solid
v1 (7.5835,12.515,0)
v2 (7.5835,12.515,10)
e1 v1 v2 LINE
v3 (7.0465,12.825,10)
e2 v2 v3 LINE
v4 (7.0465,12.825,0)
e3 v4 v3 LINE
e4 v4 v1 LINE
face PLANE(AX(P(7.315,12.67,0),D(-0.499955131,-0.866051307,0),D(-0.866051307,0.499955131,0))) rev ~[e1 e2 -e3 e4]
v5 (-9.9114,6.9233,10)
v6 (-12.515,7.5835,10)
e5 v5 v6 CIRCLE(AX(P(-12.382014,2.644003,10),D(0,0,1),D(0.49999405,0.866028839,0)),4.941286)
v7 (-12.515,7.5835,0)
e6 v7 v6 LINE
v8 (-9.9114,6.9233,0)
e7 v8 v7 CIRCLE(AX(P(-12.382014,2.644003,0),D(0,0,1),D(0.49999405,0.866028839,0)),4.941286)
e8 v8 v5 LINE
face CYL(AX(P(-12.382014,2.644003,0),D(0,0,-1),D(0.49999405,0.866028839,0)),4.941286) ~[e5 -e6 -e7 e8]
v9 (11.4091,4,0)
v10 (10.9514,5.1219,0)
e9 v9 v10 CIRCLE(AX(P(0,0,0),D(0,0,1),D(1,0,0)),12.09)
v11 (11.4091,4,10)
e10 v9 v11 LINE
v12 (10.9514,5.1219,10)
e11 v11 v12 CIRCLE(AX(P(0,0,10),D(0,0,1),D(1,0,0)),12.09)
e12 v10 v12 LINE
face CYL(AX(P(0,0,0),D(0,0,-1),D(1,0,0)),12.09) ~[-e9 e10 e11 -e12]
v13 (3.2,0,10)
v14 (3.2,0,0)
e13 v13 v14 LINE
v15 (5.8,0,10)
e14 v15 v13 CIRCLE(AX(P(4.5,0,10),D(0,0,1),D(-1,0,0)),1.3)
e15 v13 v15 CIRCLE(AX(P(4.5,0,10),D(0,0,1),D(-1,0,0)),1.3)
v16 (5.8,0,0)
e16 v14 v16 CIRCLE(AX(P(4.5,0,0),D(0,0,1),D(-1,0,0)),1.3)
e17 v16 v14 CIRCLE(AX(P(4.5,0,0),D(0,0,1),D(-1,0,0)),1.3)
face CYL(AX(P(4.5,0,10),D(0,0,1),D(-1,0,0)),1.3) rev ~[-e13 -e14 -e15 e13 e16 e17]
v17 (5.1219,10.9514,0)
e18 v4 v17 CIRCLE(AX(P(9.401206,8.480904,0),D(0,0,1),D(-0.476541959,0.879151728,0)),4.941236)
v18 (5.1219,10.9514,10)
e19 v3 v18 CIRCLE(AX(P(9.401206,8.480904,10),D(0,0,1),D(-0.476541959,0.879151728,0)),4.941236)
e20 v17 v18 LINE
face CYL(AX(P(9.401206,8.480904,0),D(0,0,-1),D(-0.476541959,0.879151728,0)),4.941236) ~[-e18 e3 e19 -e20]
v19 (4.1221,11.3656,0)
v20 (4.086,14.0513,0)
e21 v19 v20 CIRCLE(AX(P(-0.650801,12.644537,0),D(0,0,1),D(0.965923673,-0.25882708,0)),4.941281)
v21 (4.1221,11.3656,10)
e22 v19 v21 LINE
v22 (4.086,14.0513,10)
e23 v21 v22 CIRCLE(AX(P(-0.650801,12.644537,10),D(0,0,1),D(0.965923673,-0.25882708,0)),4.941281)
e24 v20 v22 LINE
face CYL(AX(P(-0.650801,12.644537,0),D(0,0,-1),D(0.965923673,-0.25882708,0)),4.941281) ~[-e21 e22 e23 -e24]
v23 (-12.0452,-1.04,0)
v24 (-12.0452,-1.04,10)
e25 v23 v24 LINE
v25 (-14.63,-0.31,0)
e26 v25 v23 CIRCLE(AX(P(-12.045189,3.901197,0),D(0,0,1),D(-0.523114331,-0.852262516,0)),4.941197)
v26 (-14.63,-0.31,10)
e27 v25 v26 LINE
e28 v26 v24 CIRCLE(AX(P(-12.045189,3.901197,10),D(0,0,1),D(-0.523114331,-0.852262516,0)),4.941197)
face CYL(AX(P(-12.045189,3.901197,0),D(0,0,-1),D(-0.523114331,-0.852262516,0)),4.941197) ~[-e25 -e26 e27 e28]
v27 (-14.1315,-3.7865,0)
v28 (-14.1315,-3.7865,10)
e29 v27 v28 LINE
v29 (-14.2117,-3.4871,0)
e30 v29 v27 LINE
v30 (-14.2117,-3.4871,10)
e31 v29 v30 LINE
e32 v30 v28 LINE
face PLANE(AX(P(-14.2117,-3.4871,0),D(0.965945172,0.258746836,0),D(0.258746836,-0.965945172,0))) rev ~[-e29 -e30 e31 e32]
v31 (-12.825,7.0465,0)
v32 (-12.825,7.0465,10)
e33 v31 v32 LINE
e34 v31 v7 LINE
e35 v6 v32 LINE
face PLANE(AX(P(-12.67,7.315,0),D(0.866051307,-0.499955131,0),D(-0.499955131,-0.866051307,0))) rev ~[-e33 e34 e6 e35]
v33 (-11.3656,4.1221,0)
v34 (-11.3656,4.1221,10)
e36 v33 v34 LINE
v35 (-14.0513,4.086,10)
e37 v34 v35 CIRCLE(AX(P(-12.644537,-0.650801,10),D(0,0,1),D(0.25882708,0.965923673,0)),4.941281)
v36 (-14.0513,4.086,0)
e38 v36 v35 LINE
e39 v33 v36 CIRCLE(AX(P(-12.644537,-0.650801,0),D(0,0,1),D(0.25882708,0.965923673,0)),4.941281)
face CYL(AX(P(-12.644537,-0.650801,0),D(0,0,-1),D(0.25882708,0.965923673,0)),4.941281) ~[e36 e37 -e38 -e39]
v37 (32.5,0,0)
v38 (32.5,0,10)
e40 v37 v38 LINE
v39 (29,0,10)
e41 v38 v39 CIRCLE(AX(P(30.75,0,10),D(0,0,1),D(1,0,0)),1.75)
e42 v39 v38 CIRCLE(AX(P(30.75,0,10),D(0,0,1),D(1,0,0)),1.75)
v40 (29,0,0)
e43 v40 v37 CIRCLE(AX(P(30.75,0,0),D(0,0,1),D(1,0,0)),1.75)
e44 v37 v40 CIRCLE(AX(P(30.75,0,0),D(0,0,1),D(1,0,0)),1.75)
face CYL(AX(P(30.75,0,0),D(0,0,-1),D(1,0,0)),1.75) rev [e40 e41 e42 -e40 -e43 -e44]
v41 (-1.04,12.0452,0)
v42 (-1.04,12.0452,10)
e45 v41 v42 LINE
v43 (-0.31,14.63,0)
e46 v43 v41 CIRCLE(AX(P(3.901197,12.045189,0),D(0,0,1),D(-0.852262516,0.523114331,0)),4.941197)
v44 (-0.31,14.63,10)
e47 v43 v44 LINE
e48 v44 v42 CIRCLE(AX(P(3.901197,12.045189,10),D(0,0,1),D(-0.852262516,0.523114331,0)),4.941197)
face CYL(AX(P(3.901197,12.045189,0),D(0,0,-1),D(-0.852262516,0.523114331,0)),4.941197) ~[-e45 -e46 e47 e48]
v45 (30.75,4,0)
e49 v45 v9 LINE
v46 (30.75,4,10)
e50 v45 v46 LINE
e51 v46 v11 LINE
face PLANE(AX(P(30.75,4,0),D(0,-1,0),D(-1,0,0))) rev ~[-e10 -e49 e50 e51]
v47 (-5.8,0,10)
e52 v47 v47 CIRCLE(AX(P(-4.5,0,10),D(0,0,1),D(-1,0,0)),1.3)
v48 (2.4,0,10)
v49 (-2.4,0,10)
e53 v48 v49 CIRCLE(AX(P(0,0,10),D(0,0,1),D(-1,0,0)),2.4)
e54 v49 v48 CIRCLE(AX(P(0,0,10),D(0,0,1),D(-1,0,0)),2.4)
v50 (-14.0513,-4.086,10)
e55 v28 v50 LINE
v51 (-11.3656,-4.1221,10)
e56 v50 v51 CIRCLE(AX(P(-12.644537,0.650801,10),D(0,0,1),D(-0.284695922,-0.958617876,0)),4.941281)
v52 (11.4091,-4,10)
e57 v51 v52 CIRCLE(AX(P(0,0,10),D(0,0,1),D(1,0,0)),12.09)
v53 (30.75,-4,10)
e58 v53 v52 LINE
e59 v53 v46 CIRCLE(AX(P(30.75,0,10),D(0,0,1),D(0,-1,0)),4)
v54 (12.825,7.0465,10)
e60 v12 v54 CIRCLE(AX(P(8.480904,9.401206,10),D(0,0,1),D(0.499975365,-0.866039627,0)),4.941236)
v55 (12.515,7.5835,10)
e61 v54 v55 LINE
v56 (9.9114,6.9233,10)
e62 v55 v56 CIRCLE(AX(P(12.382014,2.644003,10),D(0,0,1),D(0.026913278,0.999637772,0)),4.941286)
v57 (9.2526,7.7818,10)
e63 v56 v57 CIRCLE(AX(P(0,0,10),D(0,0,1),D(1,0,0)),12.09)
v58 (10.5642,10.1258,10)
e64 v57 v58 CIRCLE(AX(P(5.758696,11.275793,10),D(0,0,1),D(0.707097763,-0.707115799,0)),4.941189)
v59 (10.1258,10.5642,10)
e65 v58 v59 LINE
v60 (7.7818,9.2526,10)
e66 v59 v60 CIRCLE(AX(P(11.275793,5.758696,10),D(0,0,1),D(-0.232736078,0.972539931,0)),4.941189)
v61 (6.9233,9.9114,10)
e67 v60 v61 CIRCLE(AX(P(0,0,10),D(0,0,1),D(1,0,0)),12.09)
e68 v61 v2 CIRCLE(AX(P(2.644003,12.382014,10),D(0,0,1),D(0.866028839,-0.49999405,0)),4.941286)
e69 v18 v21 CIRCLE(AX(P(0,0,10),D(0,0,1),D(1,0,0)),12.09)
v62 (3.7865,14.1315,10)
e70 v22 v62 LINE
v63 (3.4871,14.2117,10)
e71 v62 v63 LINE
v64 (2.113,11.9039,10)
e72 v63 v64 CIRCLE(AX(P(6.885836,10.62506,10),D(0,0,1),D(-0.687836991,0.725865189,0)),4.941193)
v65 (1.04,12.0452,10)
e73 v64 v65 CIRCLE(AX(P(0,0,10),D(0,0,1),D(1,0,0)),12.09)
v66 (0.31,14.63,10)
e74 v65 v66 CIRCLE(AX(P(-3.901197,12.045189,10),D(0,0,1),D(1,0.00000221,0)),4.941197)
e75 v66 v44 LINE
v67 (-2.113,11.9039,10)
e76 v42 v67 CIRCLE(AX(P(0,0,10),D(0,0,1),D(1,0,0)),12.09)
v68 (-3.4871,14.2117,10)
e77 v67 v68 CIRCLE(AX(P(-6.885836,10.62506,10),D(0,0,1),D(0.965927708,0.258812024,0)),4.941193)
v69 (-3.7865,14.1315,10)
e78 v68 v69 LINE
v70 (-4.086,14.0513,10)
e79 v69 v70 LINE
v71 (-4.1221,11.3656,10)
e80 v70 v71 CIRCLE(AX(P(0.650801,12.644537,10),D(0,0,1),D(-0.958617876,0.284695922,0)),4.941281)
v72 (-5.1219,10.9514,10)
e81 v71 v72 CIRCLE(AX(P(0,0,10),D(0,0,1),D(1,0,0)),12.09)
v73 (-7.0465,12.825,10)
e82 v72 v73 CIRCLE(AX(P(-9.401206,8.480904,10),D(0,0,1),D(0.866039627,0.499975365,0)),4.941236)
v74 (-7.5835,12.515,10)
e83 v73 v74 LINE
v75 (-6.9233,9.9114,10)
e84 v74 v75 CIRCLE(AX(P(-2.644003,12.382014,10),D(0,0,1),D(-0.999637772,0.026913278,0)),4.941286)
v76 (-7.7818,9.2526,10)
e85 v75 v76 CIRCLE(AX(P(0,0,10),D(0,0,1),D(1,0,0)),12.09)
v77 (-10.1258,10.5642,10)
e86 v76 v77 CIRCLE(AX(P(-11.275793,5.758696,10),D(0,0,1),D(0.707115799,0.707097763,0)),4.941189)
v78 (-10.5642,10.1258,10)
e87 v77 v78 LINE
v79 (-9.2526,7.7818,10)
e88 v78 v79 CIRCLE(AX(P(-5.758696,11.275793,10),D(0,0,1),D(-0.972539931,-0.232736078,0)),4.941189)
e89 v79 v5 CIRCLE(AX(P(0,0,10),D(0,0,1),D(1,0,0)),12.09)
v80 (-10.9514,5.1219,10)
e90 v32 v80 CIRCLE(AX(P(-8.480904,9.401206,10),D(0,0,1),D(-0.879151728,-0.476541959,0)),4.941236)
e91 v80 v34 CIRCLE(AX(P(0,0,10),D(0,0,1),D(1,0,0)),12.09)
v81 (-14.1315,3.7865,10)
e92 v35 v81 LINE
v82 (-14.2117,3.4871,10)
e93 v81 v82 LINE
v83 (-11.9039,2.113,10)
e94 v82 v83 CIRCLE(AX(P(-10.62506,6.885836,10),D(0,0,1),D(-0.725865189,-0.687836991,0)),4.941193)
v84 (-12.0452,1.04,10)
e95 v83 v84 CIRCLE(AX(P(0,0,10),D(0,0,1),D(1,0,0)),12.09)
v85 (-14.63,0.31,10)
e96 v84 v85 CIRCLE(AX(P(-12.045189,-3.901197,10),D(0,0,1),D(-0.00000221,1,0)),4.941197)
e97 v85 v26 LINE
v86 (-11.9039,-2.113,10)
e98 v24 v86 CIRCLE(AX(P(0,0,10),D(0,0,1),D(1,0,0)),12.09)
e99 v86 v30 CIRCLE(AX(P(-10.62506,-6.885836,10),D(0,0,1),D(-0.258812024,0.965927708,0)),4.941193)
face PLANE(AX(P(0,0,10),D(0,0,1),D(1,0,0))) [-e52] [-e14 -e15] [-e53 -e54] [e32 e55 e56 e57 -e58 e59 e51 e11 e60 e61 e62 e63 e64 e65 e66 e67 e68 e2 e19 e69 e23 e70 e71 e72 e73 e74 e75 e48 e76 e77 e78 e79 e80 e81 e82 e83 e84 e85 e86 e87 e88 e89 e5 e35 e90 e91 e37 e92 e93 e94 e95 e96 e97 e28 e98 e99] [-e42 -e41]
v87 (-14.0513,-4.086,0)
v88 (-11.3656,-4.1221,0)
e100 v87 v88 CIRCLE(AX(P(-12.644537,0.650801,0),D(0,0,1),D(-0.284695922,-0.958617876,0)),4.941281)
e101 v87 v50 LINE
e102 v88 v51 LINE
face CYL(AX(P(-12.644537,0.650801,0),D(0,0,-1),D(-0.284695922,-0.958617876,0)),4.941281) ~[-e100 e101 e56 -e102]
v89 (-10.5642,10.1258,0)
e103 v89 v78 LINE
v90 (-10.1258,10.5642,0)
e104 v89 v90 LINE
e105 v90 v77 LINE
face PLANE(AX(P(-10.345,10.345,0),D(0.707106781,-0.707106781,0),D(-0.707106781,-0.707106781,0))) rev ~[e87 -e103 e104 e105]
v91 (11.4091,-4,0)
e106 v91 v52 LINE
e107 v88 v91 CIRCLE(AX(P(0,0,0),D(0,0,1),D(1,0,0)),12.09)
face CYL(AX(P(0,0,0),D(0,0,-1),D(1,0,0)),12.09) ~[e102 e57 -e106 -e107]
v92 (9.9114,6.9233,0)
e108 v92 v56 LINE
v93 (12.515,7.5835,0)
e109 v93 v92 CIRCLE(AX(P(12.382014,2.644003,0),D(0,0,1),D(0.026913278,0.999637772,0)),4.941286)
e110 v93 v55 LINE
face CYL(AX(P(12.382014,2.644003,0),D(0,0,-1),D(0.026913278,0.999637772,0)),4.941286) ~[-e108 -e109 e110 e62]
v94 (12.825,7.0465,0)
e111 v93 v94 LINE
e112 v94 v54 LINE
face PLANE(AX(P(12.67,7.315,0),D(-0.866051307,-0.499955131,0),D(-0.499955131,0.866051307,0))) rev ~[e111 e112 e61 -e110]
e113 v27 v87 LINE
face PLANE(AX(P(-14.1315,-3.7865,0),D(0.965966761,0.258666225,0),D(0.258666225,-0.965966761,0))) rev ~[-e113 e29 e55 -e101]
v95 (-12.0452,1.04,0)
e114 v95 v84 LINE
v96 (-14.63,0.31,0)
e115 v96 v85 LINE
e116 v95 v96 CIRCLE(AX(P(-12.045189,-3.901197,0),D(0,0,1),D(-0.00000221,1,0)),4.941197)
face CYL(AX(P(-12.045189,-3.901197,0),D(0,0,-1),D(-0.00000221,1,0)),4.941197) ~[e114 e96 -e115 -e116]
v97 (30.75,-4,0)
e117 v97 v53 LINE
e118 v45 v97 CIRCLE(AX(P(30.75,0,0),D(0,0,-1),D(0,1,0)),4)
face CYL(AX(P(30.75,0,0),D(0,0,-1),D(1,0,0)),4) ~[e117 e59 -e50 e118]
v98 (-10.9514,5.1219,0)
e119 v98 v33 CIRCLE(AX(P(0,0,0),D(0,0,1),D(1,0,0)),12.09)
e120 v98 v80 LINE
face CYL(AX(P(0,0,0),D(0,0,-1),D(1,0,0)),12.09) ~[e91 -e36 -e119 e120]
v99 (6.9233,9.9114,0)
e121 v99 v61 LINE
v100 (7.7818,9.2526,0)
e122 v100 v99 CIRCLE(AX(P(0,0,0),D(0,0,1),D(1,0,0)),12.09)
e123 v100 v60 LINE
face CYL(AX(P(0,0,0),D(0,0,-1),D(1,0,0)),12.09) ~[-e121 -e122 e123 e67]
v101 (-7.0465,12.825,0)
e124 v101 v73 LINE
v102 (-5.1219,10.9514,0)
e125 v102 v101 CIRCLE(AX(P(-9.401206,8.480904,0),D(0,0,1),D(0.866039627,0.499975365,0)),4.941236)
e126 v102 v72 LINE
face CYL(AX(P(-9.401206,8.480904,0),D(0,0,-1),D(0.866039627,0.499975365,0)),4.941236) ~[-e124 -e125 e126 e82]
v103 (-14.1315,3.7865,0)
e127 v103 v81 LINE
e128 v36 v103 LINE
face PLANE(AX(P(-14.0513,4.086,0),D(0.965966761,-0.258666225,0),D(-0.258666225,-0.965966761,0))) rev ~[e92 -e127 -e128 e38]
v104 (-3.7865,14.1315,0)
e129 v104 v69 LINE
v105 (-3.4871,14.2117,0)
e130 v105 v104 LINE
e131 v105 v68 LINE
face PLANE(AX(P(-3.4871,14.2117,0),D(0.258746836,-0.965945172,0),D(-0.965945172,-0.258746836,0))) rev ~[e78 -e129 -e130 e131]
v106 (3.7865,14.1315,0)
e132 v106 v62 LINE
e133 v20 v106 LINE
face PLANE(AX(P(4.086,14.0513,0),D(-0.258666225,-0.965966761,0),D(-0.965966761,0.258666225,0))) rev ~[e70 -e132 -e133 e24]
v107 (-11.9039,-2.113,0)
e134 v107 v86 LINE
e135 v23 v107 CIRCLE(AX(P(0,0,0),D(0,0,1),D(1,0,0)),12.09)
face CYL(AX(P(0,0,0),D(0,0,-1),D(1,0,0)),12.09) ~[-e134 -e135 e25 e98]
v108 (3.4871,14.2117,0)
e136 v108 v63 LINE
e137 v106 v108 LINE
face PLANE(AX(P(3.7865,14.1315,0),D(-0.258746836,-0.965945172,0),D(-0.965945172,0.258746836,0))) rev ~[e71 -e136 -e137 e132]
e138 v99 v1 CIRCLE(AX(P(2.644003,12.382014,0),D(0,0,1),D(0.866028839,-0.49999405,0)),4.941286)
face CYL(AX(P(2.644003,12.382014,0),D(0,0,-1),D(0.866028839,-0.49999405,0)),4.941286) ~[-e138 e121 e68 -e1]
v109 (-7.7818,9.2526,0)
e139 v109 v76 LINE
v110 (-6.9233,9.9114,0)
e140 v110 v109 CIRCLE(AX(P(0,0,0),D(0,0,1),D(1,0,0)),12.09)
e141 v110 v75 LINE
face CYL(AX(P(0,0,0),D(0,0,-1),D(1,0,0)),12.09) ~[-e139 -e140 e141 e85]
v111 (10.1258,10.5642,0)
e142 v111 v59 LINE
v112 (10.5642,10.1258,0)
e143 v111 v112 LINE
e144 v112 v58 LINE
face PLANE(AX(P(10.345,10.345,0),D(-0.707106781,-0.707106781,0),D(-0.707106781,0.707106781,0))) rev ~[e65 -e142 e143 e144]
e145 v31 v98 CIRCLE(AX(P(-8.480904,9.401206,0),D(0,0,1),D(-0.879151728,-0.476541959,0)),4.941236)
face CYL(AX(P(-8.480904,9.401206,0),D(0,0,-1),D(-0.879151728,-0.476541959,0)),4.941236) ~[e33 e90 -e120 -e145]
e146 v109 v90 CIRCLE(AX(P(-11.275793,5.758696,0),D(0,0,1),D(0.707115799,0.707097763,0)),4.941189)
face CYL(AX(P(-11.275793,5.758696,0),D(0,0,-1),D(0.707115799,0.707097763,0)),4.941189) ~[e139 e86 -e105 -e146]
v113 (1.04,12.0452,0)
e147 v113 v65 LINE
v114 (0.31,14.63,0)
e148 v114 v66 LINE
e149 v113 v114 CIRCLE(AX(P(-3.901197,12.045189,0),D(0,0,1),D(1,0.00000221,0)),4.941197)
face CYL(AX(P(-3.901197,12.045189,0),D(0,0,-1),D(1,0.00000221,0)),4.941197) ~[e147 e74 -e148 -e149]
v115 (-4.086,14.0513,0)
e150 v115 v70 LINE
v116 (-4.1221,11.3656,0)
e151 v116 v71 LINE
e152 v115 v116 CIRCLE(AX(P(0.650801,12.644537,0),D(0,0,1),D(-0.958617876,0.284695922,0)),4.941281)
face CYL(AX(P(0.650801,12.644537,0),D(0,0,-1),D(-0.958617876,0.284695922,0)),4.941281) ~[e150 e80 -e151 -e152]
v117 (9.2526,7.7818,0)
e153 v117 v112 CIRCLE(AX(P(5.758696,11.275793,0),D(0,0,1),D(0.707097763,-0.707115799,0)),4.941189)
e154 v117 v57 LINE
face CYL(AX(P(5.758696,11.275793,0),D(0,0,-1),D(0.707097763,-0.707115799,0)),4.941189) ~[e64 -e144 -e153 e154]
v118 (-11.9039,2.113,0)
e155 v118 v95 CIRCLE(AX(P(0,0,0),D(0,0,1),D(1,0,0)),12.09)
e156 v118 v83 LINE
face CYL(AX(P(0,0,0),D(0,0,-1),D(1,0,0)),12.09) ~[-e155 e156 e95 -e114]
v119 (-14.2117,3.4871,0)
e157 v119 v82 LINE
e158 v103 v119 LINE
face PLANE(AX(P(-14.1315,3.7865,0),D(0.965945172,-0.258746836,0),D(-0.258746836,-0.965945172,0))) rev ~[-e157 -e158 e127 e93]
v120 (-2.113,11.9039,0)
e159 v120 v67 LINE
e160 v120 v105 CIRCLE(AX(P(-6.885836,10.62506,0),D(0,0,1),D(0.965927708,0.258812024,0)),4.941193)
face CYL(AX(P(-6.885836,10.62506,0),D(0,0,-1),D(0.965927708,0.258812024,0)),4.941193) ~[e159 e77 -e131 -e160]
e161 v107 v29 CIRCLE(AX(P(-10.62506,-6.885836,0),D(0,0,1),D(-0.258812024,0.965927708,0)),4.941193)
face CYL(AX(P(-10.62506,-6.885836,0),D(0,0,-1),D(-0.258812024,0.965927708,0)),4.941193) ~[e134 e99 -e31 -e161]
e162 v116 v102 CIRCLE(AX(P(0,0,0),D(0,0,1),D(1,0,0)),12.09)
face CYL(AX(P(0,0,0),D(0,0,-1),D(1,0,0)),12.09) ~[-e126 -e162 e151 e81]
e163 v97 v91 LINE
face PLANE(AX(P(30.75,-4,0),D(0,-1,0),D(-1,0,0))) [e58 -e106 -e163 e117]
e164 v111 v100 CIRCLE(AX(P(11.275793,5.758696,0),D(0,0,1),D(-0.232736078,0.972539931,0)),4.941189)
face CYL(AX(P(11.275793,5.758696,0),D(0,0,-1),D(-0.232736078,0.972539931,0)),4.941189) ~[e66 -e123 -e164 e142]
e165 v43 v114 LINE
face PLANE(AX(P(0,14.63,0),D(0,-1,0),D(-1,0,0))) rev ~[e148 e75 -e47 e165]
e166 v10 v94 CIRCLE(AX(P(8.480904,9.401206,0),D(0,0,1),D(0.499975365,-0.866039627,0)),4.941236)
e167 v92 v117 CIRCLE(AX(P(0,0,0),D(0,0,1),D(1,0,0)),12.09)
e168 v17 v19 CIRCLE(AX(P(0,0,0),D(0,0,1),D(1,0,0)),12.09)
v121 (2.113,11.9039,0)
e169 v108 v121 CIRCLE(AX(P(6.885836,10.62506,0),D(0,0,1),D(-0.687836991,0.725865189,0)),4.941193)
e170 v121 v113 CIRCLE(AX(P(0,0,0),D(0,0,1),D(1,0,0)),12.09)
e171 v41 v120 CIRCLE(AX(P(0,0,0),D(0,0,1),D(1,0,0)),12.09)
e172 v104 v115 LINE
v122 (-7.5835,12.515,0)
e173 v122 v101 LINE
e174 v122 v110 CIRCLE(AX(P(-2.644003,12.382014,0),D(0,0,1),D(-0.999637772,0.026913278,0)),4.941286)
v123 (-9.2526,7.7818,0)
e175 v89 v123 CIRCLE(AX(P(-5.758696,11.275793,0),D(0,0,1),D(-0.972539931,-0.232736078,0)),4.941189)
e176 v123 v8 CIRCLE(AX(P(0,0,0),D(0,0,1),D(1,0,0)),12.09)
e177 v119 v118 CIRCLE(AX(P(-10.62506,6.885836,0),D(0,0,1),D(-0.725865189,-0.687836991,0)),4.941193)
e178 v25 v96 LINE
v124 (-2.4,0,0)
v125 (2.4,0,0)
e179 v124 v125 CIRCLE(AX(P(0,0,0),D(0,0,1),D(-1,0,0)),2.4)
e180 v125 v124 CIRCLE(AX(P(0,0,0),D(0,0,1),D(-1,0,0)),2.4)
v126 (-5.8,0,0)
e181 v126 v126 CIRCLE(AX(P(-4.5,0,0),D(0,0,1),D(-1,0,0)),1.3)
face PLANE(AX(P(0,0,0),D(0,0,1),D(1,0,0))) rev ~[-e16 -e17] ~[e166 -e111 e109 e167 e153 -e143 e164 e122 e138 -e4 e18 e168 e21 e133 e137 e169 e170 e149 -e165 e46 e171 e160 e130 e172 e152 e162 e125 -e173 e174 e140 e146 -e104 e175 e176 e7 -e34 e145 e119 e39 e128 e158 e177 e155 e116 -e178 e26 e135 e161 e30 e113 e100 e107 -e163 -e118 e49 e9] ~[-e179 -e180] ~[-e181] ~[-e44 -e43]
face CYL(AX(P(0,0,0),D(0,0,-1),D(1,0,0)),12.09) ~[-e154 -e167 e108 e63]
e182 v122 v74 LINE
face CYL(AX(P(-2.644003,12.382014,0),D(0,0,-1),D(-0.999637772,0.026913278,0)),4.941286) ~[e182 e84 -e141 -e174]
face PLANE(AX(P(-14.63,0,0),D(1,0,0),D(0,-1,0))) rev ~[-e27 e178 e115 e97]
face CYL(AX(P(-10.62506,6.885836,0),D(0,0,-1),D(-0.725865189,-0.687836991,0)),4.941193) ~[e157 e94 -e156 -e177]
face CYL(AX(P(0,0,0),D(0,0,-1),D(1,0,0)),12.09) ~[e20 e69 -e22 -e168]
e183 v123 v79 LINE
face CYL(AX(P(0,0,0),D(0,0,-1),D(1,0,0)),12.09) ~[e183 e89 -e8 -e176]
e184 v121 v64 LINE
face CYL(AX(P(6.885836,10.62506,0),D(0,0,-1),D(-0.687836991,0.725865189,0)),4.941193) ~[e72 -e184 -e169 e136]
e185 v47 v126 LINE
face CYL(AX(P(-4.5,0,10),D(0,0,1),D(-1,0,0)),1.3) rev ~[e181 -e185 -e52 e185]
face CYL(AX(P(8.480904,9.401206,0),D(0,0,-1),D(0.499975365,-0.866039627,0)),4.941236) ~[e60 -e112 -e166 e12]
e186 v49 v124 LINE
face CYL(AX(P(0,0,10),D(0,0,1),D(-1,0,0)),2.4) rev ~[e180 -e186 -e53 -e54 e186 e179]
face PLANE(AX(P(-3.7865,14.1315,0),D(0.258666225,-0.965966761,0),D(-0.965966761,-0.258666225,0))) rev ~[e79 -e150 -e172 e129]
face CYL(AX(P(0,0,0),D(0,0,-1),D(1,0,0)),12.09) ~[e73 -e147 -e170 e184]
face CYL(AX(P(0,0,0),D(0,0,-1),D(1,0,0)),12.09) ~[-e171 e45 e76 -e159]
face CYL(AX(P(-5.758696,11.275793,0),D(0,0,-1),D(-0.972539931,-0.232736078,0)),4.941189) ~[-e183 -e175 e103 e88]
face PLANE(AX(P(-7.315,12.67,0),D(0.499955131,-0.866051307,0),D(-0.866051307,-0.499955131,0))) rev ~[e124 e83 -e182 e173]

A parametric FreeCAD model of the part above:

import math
import FreeCAD as App
import Part
import Sketcher

V = App.Vector
Q = App.Units.Quantity

doc = App.newDocument("Part")
params = doc.addObject("Spreadsheet::Sheet", "Params")
for row, (alias, value) in enumerate([
    ("sketch1_radius", "4 mm"),
    ("sketch1_diameter", "3.5 mm"),
    ("sketch1_radius2", "12.09 mm"),
    ("sketch1_length", "0.31 mm"),
    ("sketch1_length2", "0.62 mm"),
    ("pad1_length", "10 mm"),
    ("sketch2_diameter", "2.6 mm"),
    ("pocket1_length", "10 mm"),
    ("sketch3_diameter", "2.6 mm"),
    ("pocket2_length", "10 mm"),
    ("sketch4_diameter", "4.8 mm"),
    ("pocket3_length", "10 mm"),
], start=1):
    params.set(f"A{row}", alias)
    params.set(f"B{row}", "=" + value)
    params.setAlias(f"B{row}", alias)

body = doc.addObject("PartDesign::Body", "Body")

# Sketch on XY plane
sketch1 = body.newObject("Sketcher::SketchObject", "Sketch")
sketch1.AttachmentSupport = (doc.getObject("XY_Plane"), [""])
sketch1.MapMode = "FlatFace"
sketch1.addGeometry([
    Part.ArcOfCircle(Part.Circle(V(0, 0, 0), V(0, 0, 1), 12.09), math.radians(-160), math.radians(-19)),  # 0
    Part.LineSegment(V(11.41, -4, 0), V(30.75, -4, 0)),  # 1
    Part.ArcOfCircle(Part.Circle(V(30.75, 0, 0), V(0, 0, 1), 4), math.radians(-90), math.radians(90)),  # 2
    Part.LineSegment(V(30.75, 4, 0), V(11.41, 4, 0)),  # 3
    Part.ArcOfCircle(Part.Circle(V(0, 0, 0), V(0, 0, 1), 12.09), math.radians(19.32), math.radians(25.07)),  # 4
    Part.ArcOfCircle(Part.Circle(V(8.48, 9.4, 0), V(0, 0, 1), 4.94), math.radians(-60), math.radians(-28)),  # 5
    Part.LineSegment(V(12.82, 7.05, 0), V(12.52, 7.58, 0)),  # 6
    Part.ArcOfCircle(Part.Circle(V(12.38, 2.64, 0), V(0, 0, 1), 4.94), math.radians(88), math.radians(120)),  # 7
    Part.ArcOfCircle(Part.Circle(V(0, 0, 0), V(0, 0, 1), 12.09), math.radians(34.94), math.radians(40.07)),  # 8
    Part.ArcOfCircle(Part.Circle(V(5.76, 11.28, 0), V(0, 0, 1), 4.94), math.radians(-45), math.radians(-13)),  # 9
    Part.LineSegment(V(10.56, 10.13, 0), V(10.13, 10.56, 0)),  # 10
    Part.ArcOfCircle(Part.Circle(V(11.28, 5.76, 0), V(0, 0, 1), 4.94), math.radians(103), math.radians(135)),  # 11
    Part.ArcOfCircle(Part.Circle(V(0, 0, 0), V(0, 0, 1), 12.09), math.radians(49.93), math.radians(55.06)),  # 12
    Part.ArcOfCircle(Part.Circle(V(2.64, 12.38, 0), V(0, 0, 1), 4.94), math.radians(-30), math.radians(2)),  # 13
    Part.LineSegment(V(7.58, 12.52, 0), V(7.05, 12.82, 0)),  # 14
    Part.ArcOfCircle(Part.Circle(V(9.4, 8.48, 0), V(0, 0, 1), 4.94), math.radians(118), math.radians(150)),  # 15
    Part.ArcOfCircle(Part.Circle(V(0, 0, 0), V(0, 0, 1), 12.09), math.radians(64.93), math.radians(70.07)),  # 16
    Part.ArcOfCircle(Part.Circle(V(-0.65, 12.64, 0), V(0, 0, 1), 4.94), math.radians(-15), math.radians(17)),  # 17
    Part.LineSegment(V(4.09, 14.05, 0), V(3.79, 14.13, 0)),  # 18
    Part.LineSegment(V(3.79, 14.13, 0), V(3.49, 14.21, 0)),  # 19
    Part.ArcOfCircle(Part.Circle(V(6.89, 10.62, 0), V(0, 0, 1), 4.94), math.radians(133), math.radians(165)),  # 20
    Part.ArcOfCircle(Part.Circle(V(0, 0, 0), V(0, 0, 1), 12.09), math.radians(79.93), math.radians(85.07)),  # 21
    Part.ArcOfCircle(Part.Circle(V(-3.9, 12.05, 0), V(0, 0, 1), 4.94), math.radians(0), math.radians(32)),  # 22
    Part.LineSegment(V(0.31, 14.63, 0), V(-0.31, 14.63, 0)),  # 23
    Part.ArcOfCircle(Part.Circle(V(3.9, 12.05, 0), V(0, 0, 1), 4.94), math.radians(148), math.radians(180)),  # 24
    Part.ArcOfCircle(Part.Circle(V(0, 0, 0), V(0, 0, 1), 12.09), math.radians(94.93), math.radians(100.07)),  # 25
    Part.ArcOfCircle(Part.Circle(V(-6.89, 10.62, 0), V(0, 0, 1), 4.94), math.radians(15), math.radians(47)),  # 26
    Part.LineSegment(V(-3.49, 14.21, 0), V(-3.79, 14.13, 0)),  # 27
    Part.LineSegment(V(-3.79, 14.13, 0), V(-4.09, 14.05, 0)),  # 28
    Part.ArcOfCircle(Part.Circle(V(0.65, 12.64, 0), V(0, 0, 1), 4.94), math.radians(163), math.radians(195)),  # 29
    Part.ArcOfCircle(Part.Circle(V(0, 0, 0), V(0, 0, 1), 12.09), math.radians(109.93), math.radians(115.07)),  # 30
    Part.ArcOfCircle(Part.Circle(V(-9.4, 8.48, 0), V(0, 0, 1), 4.94), math.radians(30), math.radians(62)),  # 31
    Part.LineSegment(V(-7.05, 12.82, 0), V(-7.58, 12.52, 0)),  # 32
    Part.ArcOfCircle(Part.Circle(V(-2.64, 12.38, 0), V(0, 0, 1), 4.94), math.radians(178), math.radians(210)),  # 33
    Part.ArcOfCircle(Part.Circle(V(0, 0, 0), V(0, 0, 1), 12.09), math.radians(124.94), math.radians(130.07)),  # 34
    Part.ArcOfCircle(Part.Circle(V(-11.28, 5.76, 0), V(0, 0, 1), 4.94), math.radians(45), math.radians(77)),  # 35
    Part.LineSegment(V(-10.13, 10.56, 0), V(-10.56, 10.13, 0)),  # 36
    Part.ArcOfCircle(Part.Circle(V(-5.76, 11.28, 0), V(0, 0, 1), 4.94), math.radians(-167), math.radians(-135)),  # 37
    Part.ArcOfCircle(Part.Circle(V(0, 0, 0), V(0, 0, 1), 12.09), math.radians(139.93), math.radians(145.06)),  # 38
    Part.ArcOfCircle(Part.Circle(V(-12.38, 2.64, 0), V(0, 0, 1), 4.94), math.radians(60), math.radians(92)),  # 39
    Part.LineSegment(V(-12.52, 7.58, 0), V(-12.82, 7.05, 0)),  # 40
    Part.ArcOfCircle(Part.Circle(V(-8.48, 9.4, 0), V(0, 0, 1), 4.94), math.radians(-152), math.radians(-120)),  # 41
    Part.ArcOfCircle(Part.Circle(V(0, 0, 0), V(0, 0, 1), 12.09), math.radians(154.93), math.radians(160.07)),  # 42
    Part.ArcOfCircle(Part.Circle(V(-12.64, -0.65, 0), V(0, 0, 1), 4.94), math.radians(75), math.radians(107)),  # 43
    Part.LineSegment(V(-14.05, 4.09, 0), V(-14.13, 3.79, 0)),  # 44
    Part.LineSegment(V(-14.13, 3.79, 0), V(-14.21, 3.49, 0)),  # 45
    Part.ArcOfCircle(Part.Circle(V(-10.62, 6.89, 0), V(0, 0, 1), 4.94), math.radians(-137), math.radians(-105)),  # 46
    Part.ArcOfCircle(Part.Circle(V(0, 0, 0), V(0, 0, 1), 12.09), math.radians(169.93), math.radians(175.07)),  # 47
    Part.ArcOfCircle(Part.Circle(V(-12.05, -3.9, 0), V(0, 0, 1), 4.94), math.radians(90), math.radians(122)),  # 48
    Part.LineSegment(V(-14.63, 0.31, 0), V(-14.63, -0.31, 0)),  # 49
    Part.ArcOfCircle(Part.Circle(V(-12.05, 3.9, 0), V(0, 0, 1), 4.94), math.radians(-122), math.radians(-90)),  # 50
    Part.ArcOfCircle(Part.Circle(V(0, 0, 0), V(0, 0, 1), 12.09), math.radians(-175.07), math.radians(-169.93)),  # 51
    Part.ArcOfCircle(Part.Circle(V(-10.62, -6.89, 0), V(0, 0, 1), 4.94), math.radians(105), math.radians(137)),  # 52
    Part.LineSegment(V(-14.21, -3.49, 0), V(-14.13, -3.79, 0)),  # 53
    Part.LineSegment(V(-14.13, -3.79, 0), V(-14.05, -4.09, 0)),  # 54
    Part.ArcOfCircle(Part.Circle(V(-12.64, 0.65, 0), V(0, 0, 1), 4.94), math.radians(-107), math.radians(-75)),  # 55
    Part.Circle(V(0, 0, 0), V(0, 0, 1), 1.75),  # 56
    Part.Circle(V(30.75, 0, 0), V(0, 0, 1), 1.75),  # 57
], False)
sketch1.addConstraint([
    Sketcher.Constraint("Coincident", 0, 2, 1, 1),
    Sketcher.Constraint("Tangent", 1, 2, 2, 1),
    Sketcher.Constraint("Tangent", 2, 2, 3, 1),
    Sketcher.Constraint("Coincident", 3, 2, 4, 1),
    Sketcher.Constraint("Coincident", 4, 2, 5, 1),
    Sketcher.Constraint("Coincident", 5, 2, 6, 1),
    Sketcher.Constraint("Coincident", 6, 2, 7, 1),
    Sketcher.Constraint("Coincident", 7, 2, 8, 1),
    Sketcher.Constraint("Coincident", 8, 2, 9, 1),
    Sketcher.Constraint("Coincident", 9, 2, 10, 1),
    Sketcher.Constraint("Coincident", 10, 2, 11, 1),
    Sketcher.Constraint("Coincident", 11, 2, 12, 1),
    Sketcher.Constraint("Coincident", 12, 2, 13, 1),
    Sketcher.Constraint("Coincident", 13, 2, 14, 1),
    Sketcher.Constraint("Coincident", 14, 2, 15, 1),
    Sketcher.Constraint("Coincident", 15, 2, 16, 1),
    Sketcher.Constraint("Coincident", 16, 2, 17, 1),
    Sketcher.Constraint("Coincident", 17, 2, 18, 1),
    Sketcher.Constraint("Coincident", 18, 2, 19, 1),
    Sketcher.Constraint("Coincident", 19, 2, 20, 1),
    Sketcher.Constraint("Coincident", 20, 2, 21, 1),
    Sketcher.Constraint("Coincident", 21, 2, 22, 1),
    Sketcher.Constraint("Coincident", 22, 2, 23, 1),
    Sketcher.Constraint("Coincident", 23, 2, 24, 1),
    Sketcher.Constraint("Coincident", 24, 2, 25, 1),
    Sketcher.Constraint("Coincident", 25, 2, 26, 1),
    Sketcher.Constraint("Coincident", 26, 2, 27, 1),
    Sketcher.Constraint("Coincident", 27, 2, 28, 1),
    Sketcher.Constraint("Coincident", 28, 2, 29, 1),
    Sketcher.Constraint("Coincident", 29, 2, 30, 1),
    Sketcher.Constraint("Coincident", 30, 2, 31, 1),
    Sketcher.Constraint("Coincident", 31, 2, 32, 1),
    Sketcher.Constraint("Coincident", 32, 2, 33, 1),
    Sketcher.Constraint("Coincident", 33, 2, 34, 1),
    Sketcher.Constraint("Coincident", 34, 2, 35, 1),
    Sketcher.Constraint("Coincident", 35, 2, 36, 1),
    Sketcher.Constraint("Coincident", 36, 2, 37, 1),
    Sketcher.Constraint("Coincident", 37, 2, 38, 1),
    Sketcher.Constraint("Coincident", 38, 2, 39, 1),
    Sketcher.Constraint("Coincident", 39, 2, 40, 1),
    Sketcher.Constraint("Coincident", 40, 2, 41, 1),
    Sketcher.Constraint("Coincident", 41, 2, 42, 1),
    Sketcher.Constraint("Coincident", 42, 2, 43, 1),
    Sketcher.Constraint("Coincident", 43, 2, 44, 1),
    Sketcher.Constraint("Coincident", 44, 2, 45, 1),
    Sketcher.Constraint("Coincident", 45, 2, 46, 1),
    Sketcher.Constraint("Coincident", 46, 2, 47, 1),
    Sketcher.Constraint("Coincident", 47, 2, 48, 1),
    Sketcher.Constraint("Coincident", 48, 2, 49, 1),
    Sketcher.Constraint("Coincident", 49, 2, 50, 1),
    Sketcher.Constraint("Coincident", 50, 2, 51, 1),
    Sketcher.Constraint("Coincident", 51, 2, 52, 1),
    Sketcher.Constraint("Coincident", 52, 2, 53, 1),
    Sketcher.Constraint("Coincident", 53, 2, 54, 1),
    Sketcher.Constraint("Coincident", 54, 2, 55, 1),
    Sketcher.Constraint("Coincident", 55, 2, 0, 1),
    Sketcher.Constraint("Horizontal", 1),
    Sketcher.Constraint("Horizontal", 3),
    Sketcher.Constraint("Horizontal", 23),
    Sketcher.Constraint("Vertical", 49),
    Sketcher.Constraint("Coincident", 0, 3, -1, 1),
    Sketcher.Constraint("Coincident", 4, 3, -1, 1),
    Sketcher.Constraint("Coincident", 8, 3, -1, 1),
    Sketcher.Constraint("Coincident", 12, 3, -1, 1),
    Sketcher.Constraint("Coincident", 16, 3, -1, 1),
    Sketcher.Constraint("Coincident", 21, 3, -1, 1),
    Sketcher.Constraint("Coincident", 25, 3, -1, 1),
    Sketcher.Constraint("Coincident", 30, 3, -1, 1),
    Sketcher.Constraint("Coincident", 34, 3, -1, 1),
    Sketcher.Constraint("Coincident", 38, 3, -1, 1),
    Sketcher.Constraint("Coincident", 42, 3, -1, 1),
    Sketcher.Constraint("Coincident", 47, 3, -1, 1),
    Sketcher.Constraint("Coincident", 51, 3, -1, 1),
    Sketcher.Constraint("Coincident", 56, 3, -1, 1),
    Sketcher.Constraint("Coincident", 57, 3, 2, 3),
    Sketcher.Constraint("Equal", 0, 4),
    Sketcher.Constraint("Equal", 4, 8),
    Sketcher.Constraint("Equal", 7, 9),
    Sketcher.Constraint("Equal", 9, 11),
    Sketcher.Constraint("Equal", 8, 12),
    Sketcher.Constraint("Equal", 11, 13),
    Sketcher.Constraint("Equal", 12, 16),
    Sketcher.Constraint("Equal", 13, 17),
    Sketcher.Constraint("Equal", 17, 20),
    Sketcher.Constraint("Equal", 16, 21),
    Sketcher.Constraint("Equal", 20, 22),
    Sketcher.Constraint("Equal", 22, 24),
    Sketcher.Constraint("Equal", 21, 25),
    Sketcher.Constraint("Equal", 24, 26),
    Sketcher.Constraint("Equal", 26, 29),
    Sketcher.Constraint("Equal", 25, 30),
    Sketcher.Constraint("Equal", 5, 31),
    Sketcher.Constraint("Equal", 29, 33),
    Sketcher.Constraint("Equal", 30, 34),
    Sketcher.Constraint("Equal", 33, 35),
    Sketcher.Constraint("Equal", 35, 37),
    Sketcher.Constraint("Equal", 34, 38),
    Sketcher.Constraint("Equal", 37, 39),
    Sketcher.Constraint("Equal", 15, 41),
    Sketcher.Constraint("Equal", 38, 42),
    Sketcher.Constraint("Equal", 39, 43),
    Sketcher.Constraint("Equal", 43, 46),
    Sketcher.Constraint("Equal", 42, 47),
    Sketcher.Constraint("Equal", 46, 48),
    Sketcher.Constraint("Equal", 48, 50),
    Sketcher.Constraint("Equal", 47, 51),
    Sketcher.Constraint("Equal", 50, 52),
    Sketcher.Constraint("Equal", 52, 55),
    Sketcher.Constraint("Equal", 56, 57),
    Sketcher.Constraint("Symmetric", 22, 3, 24, 3, -2),
    Sketcher.Constraint("Symmetric", 20, 3, 26, 3, -2),
    Sketcher.Constraint("Symmetric", 17, 3, 29, 3, -2),
    Sketcher.Constraint("Symmetric", 13, 3, 33, 3, -2),
    Sketcher.Constraint("Symmetric", 11, 3, 35, 3, -2),
    Sketcher.Constraint("Symmetric", 9, 3, 37, 3, -2),
    Sketcher.Constraint("Symmetric", 7, 3, 39, 3, -2),
    Sketcher.Constraint("Symmetric", 18, 2, 27, 2, -2),
    Sketcher.Constraint("Symmetric", 14, 2, 31, 2, -2),
    Sketcher.Constraint("Symmetric", 5, 2, 40, 2, -2),
    Sketcher.Constraint("Symmetric", 48, 3, 50, 3, -1),
    Sketcher.Constraint("Symmetric", 46, 3, 52, 3, -1),
    Sketcher.Constraint("Symmetric", 43, 3, 55, 3, -1),
    Sketcher.Constraint("Symmetric", 44, 2, 53, 2, -1),
    Sketcher.Constraint("PointOnObject", 2, 3, -1),
    Sketcher.Constraint("Parallel", 18, 19),
    Sketcher.Constraint("Parallel", 27, 28),
    Sketcher.Constraint("Perpendicular", 6, 32),
    Sketcher.Constraint("Perpendicular", 10, 36),
    Sketcher.Constraint("Perpendicular", 14, 40),
    Sketcher.Constraint("Perpendicular", 19, 44),
    Sketcher.Constraint("Parallel", 44, 45),
    Sketcher.Constraint("Perpendicular", 28, 53),
    Sketcher.Constraint("Parallel", 53, 54),
    Sketcher.Constraint("Horizontal", 24, 3, 21, 2),
    Sketcher.Constraint("Horizontal", 19, 2, 26, 2),
    Sketcher.Constraint("Horizontal", 15, 2, 30, 2),
    Sketcher.Constraint("Horizontal", 13, 2, 32, 2),
    Sketcher.Constraint("Horizontal", 10, 2, 35, 2),
    Sketcher.Constraint("Horizontal", 9, 2, 36, 2),
    Sketcher.Constraint("Horizontal", 4, 2, 41, 2),
    Sketcher.Constraint("Vertical", 50, 3, 47, 2),
    Sketcher.Constraint("Equal", 23, 49),
    Sketcher.Constraint("Equal", 6, 10),
    Sketcher.Constraint("Equal", 10, 14),
    Sketcher.Constraint("Equal", 18, 19),
    Sketcher.Constraint("Equal", 28, 44),
    Sketcher.Constraint("Equal", 44, 45),
    Sketcher.Constraint("Radius", 2, 4.0),
    Sketcher.Constraint("Diameter", 56, 3.5),
    Sketcher.Constraint("Radius", 0, 12.09),
    Sketcher.Constraint("Distance", 18, 0.31),
    Sketcher.Constraint("DistanceX", -1, 1, 2, 3, 30.75),
    Sketcher.Constraint("DistanceX", -1, 1, 22, 2, 0.31),
    Sketcher.Constraint("Angle", 18, Q("165.009 deg")),
    Sketcher.Constraint("Radius", 5, 4.9423),
    Sketcher.Constraint("Radius", 7, 4.9413),
    Sketcher.Constraint("Radius", 15, 4.9402),
    Sketcher.Constraint("Distance", 6, 0.62),
    Sketcher.Constraint("DistanceX", -1, 1, 21, 2, 1.04),
    Sketcher.Constraint("DistanceY", -1, 1, 47, 2, 1.04),
    Sketcher.Constraint("DistanceY", -1, 1, 5, 3, 9.402),
    Sketcher.Constraint("DistanceX", -1, 1, 7, 3, 12.382),
    Sketcher.Constraint("DistanceY", -1, 1, 7, 3, 2.644),
    Sketcher.Constraint("DistanceX", -1, 1, 13, 3, 2.644),
    Sketcher.Constraint("DistanceY", -1, 1, 13, 3, 12.382),
    Sketcher.Constraint("DistanceY", -1, 1, 20, 3, 10.625),
    Sketcher.Constraint("DistanceX", 31, 3, -1, 1, 9.402),
    Sketcher.Constraint("DistanceX", 46, 3, -1, 1, 10.625),
    Sketcher.Constraint("DistanceY", -1, 1, 4, 2, 5.122),
    Sketcher.Constraint("DistanceX", -1, 1, 5, 2, 12.825),
    Sketcher.Constraint("DistanceY", -1, 1, 13, 2, 12.515),
    Sketcher.Constraint("DistanceX", -1, 1, 16, 2, 4.122),
    Sketcher.Constraint("DistanceX", -1, 1, 17, 2, 4.086),
    Sketcher.Constraint("DistanceX", -1, 1, 20, 2, 2.113),
    Sketcher.Constraint("DistanceY", -1, 1, 42, 2, 4.122),
    Sketcher.Constraint("DistanceY", -1, 1, 43, 2, 4.086),
    Sketcher.Constraint("DistanceX", 46, 2, -1, 1, 11.904),
    Sketcher.Constraint("DistanceX", -1, 1, 9, 3, 5.7587),
    Sketcher.Constraint("DistanceY", -1, 1, 9, 3, 11.2758),
    Sketcher.Constraint("DistanceX", -1, 1, 11, 3, 11.2758),
    Sketcher.Constraint("DistanceY", -1, 1, 11, 3, 5.7587),
])
sketch1.setExpression("Constraints[147]", "Params.sketch1_radius")
sketch1.setExpression("Constraints[148]", "Params.sketch1_diameter")
sketch1.setExpression("Constraints[149]", "Params.sketch1_radius2")
sketch1.setExpression("Constraints[150]", "Params.sketch1_length")
sketch1.setExpression("Constraints[157]", "Params.sketch1_length2")
pad1 = body.newObject("PartDesign::Pad", "Pad")
pad1.Profile = sketch1
pad1.setExpression("Length", "Params.pad1_length")

# Sketch on XY plane
sketch2 = body.newObject("Sketcher::SketchObject", "Sketch001")
sketch2.AttachmentSupport = (doc.getObject("XY_Plane"), [""])
sketch2.MapMode = "FlatFace"
sketch2.AttachmentOffset = App.Placement(V(0, 0, 10), App.Rotation())
sketch2.addGeometry(Part.Circle(V(-4.5, 0, 0), V(0, 0, 1), 1.3), False)
sketch2.addConstraint([
    Sketcher.Constraint("PointOnObject", 0, 3, -1),
    Sketcher.Constraint("Diameter", 0, 2.6),
    Sketcher.Constraint("DistanceX", 0, 3, -1, 1, 4.5),
])
sketch2.setExpression("Constraints[1]", "Params.sketch2_diameter")
pocket1 = body.newObject("PartDesign::Pocket", "Pocket")
pocket1.Profile = sketch2
pocket1.setExpression("Length", "Params.pocket1_length")

# Sketch on XY plane
sketch3 = body.newObject("Sketcher::SketchObject", "Sketch002")
sketch3.AttachmentSupport = (doc.getObject("XY_Plane"), [""])
sketch3.MapMode = "FlatFace"
sketch3.AttachmentOffset = App.Placement(V(0, 0, 10), App.Rotation())
sketch3.addGeometry(Part.Circle(V(4.5, 0, 0), V(0, 0, 1), 1.3), False)
sketch3.addConstraint([
    Sketcher.Constraint("PointOnObject", 0, 3, -1),
    Sketcher.Constraint("Diameter", 0, 2.6),
    Sketcher.Constraint("DistanceX", -1, 1, 0, 3, 4.5),
])
sketch3.setExpression("Constraints[1]", "Params.sketch3_diameter")
pocket2 = body.newObject("PartDesign::Pocket", "Pocket001")
pocket2.Profile = sketch3
pocket2.setExpression("Length", "Params.pocket2_length")

# Sketch on XY plane
sketch4 = body.newObject("Sketcher::SketchObject", "Sketch003")
sketch4.AttachmentSupport = (doc.getObject("XY_Plane"), [""])
sketch4.MapMode = "FlatFace"
sketch4.AttachmentOffset = App.Placement(V(0, 0, 10), App.Rotation())
sketch4.addGeometry(Part.Circle(V(0, 0, 0), V(0, 0, 1), 2.4), False)
sketch4.addConstraint([
    Sketcher.Constraint("Coincident", 0, 3, -1, 1),
    Sketcher.Constraint("Diameter", 0, 4.8),
])
sketch4.setExpression("Constraints[1]", "Params.sketch4_diameter")
pocket3 = body.newObject("PartDesign::Pocket", "Pocket002")
pocket3.Profile = sketch4
pocket3.setExpression("Length", "Params.pocket3_length")

doc.recompute()
